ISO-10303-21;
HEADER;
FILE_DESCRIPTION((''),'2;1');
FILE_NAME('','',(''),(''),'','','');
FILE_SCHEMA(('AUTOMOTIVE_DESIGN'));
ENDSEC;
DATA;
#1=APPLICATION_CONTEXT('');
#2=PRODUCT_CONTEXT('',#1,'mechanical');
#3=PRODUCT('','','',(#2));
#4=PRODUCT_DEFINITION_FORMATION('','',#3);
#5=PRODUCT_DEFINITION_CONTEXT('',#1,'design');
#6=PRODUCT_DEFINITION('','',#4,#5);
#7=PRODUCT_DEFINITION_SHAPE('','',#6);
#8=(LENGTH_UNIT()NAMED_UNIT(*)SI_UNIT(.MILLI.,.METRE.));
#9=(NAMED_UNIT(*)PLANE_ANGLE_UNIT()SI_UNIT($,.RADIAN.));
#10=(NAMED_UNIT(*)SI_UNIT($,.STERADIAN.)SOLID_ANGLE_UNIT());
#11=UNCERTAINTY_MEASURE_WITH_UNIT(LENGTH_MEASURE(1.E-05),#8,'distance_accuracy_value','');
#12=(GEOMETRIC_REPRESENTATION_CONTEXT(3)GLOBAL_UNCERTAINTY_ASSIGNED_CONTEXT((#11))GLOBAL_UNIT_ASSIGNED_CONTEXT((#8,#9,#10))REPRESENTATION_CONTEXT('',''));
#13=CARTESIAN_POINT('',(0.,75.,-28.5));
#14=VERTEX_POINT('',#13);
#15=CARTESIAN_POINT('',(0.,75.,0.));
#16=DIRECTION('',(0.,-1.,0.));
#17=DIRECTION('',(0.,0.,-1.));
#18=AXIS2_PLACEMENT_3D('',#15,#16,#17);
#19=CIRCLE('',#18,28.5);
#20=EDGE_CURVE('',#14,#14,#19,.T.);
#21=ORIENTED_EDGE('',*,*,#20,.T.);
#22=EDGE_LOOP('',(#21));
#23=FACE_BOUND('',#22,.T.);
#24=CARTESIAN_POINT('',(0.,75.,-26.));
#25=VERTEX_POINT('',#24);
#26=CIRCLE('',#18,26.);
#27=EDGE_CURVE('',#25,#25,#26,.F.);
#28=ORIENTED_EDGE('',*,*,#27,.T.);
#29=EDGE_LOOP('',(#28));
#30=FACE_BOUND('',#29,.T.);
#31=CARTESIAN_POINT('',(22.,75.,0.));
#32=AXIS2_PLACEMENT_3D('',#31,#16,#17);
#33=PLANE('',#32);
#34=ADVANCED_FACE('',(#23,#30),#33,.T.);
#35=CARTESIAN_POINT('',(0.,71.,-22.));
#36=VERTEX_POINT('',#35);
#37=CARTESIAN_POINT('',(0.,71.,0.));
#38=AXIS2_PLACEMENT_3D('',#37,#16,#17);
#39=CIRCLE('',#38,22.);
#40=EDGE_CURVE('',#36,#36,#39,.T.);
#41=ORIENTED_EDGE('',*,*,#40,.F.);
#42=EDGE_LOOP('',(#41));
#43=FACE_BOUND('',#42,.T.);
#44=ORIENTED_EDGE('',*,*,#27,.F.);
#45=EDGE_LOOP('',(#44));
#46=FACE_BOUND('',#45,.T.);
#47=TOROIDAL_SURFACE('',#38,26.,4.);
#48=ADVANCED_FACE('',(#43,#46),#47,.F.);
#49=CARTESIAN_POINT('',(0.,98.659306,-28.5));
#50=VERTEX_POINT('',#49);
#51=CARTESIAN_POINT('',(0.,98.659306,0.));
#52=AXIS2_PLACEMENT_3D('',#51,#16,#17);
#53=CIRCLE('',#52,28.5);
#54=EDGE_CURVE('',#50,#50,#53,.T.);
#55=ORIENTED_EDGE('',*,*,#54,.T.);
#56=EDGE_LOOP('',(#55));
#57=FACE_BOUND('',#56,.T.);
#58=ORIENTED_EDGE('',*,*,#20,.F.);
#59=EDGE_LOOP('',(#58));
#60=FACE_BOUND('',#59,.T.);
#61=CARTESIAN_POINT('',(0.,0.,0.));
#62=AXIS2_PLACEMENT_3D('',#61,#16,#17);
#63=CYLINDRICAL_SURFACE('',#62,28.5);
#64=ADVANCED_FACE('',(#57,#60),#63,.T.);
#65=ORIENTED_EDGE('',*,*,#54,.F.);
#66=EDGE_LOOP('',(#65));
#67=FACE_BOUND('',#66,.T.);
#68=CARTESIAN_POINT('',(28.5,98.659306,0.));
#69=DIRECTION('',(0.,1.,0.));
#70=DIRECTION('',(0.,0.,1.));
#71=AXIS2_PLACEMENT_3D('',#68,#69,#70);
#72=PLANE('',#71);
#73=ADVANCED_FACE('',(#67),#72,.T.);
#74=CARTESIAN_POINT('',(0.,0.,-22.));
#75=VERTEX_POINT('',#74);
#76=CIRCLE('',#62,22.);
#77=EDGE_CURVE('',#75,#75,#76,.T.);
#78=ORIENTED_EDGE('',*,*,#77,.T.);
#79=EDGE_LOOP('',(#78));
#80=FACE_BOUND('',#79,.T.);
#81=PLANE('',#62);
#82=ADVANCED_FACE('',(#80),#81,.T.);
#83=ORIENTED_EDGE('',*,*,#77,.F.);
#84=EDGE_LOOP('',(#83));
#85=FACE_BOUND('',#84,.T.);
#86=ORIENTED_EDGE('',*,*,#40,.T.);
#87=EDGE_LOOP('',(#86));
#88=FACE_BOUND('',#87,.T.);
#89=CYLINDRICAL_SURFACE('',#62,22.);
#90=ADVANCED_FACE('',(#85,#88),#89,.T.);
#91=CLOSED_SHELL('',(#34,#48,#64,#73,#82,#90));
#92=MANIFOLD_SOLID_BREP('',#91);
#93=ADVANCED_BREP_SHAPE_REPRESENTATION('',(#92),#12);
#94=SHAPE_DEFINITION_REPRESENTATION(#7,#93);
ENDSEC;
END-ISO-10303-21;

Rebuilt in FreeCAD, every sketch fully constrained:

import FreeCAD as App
import Part
import Sketcher
from FreeCAD import Vector
Q = App.Units.Quantity


def edges_at(feature, points):
    """Names of the edges that pass closest to the given points."""
    edges = feature.Shape.Edges
    near = lambda p: min(range(len(edges)), key=lambda i: edges[i].distToShape(Part.Vertex(*p))[0])
    return sorted({f"Edge{near(p) + 1}" for p in points})


def add_polygon(sketch, points):
    """Adds a closed chain of lines whose ends are joined by coincident constraints."""
    first, n = sketch.GeometryCount, len(points)
    for a, b in zip(points, points[1:] + points[:1]):
        sketch.addGeometry(Part.LineSegment(App.Vector(*a, 0), App.Vector(*b, 0)), False)
    for i in range(n):
        sketch.addConstraint(Sketcher.Constraint("Coincident", first + i, 2, first + (i + 1) % n, 1))

doc = App.newDocument("Part")
params = doc.addObject("Spreadsheet::Sheet", "Params")
for row, (alias, value) in enumerate([
    ("sketch1_width", "22 mm"),
    ("sketch1_height", "75 mm"),
    ("sketch1_width2", "6.5 mm"),
    ("revolution_angle", "360 deg"),
    ("fillet_radius", "4 mm"),
], start=1):
    params.set(f"A{row}", alias)
    params.set(f"B{row}", "=" + value)
    params.setAlias(f"B{row}", alias)

body = doc.addObject("PartDesign::Body", "Body")

# Sketch on XY plane
sketch1 = doc.addObject("Sketcher::SketchObject", "Sketch")
body.addObject(sketch1)
sketch1.AttachmentSupport = (doc.XY_Plane, [""])
sketch1.MapMode = "FlatFace"
add_polygon(sketch1, [(0, 0), (22, 0), (22, 75), (28, 75), (28, 99), (0, 99)])  # lines 0-5
sketch1.addConstraint([
    Sketcher.Constraint("Horizontal", 0),
    Sketcher.Constraint("Vertical", 1),
    Sketcher.Constraint("Horizontal", 2),
    Sketcher.Constraint("Vertical", 3),
    Sketcher.Constraint("Horizontal", 4),
    Sketcher.Constraint("Vertical", 5),
    Sketcher.Constraint("Coincident", 5, 2, -1, 1),
    Sketcher.Constraint("DistanceX", 0, 1, 0, 2, Q("22 mm")),
    Sketcher.Constraint("DistanceY", 1, 1, 1, 2, Q("75 mm")),
    Sketcher.Constraint("DistanceX", 2, 1, 2, 2, Q("6.5 mm")),
    Sketcher.Constraint("DistanceY", 3, 1, 3, 2, Q("23.659306 mm")),
])
sketch1.setExpression("Constraints[13]", "Params.sketch1_width")
sketch1.setExpression("Constraints[14]", "Params.sketch1_height")
sketch1.setExpression("Constraints[15]", "Params.sketch1_width2")
revolution = doc.addObject("PartDesign::Revolution", "Revolution")
body.addObject(revolution)
revolution.Profile = sketch1
revolution.ReferenceAxis = (sketch1, ["V_Axis"])
revolution.setExpression("Angle", "Params.revolution_angle")
doc.recompute()

fillet = doc.addObject("PartDesign::Fillet", "Fillet")
body.addObject(fillet)
fillet.Base = (revolution, edges_at(revolution, [(0, 75, 22)]))
fillet.setExpression("Radius", "Params.fillet_radius")

doc.recompute()
